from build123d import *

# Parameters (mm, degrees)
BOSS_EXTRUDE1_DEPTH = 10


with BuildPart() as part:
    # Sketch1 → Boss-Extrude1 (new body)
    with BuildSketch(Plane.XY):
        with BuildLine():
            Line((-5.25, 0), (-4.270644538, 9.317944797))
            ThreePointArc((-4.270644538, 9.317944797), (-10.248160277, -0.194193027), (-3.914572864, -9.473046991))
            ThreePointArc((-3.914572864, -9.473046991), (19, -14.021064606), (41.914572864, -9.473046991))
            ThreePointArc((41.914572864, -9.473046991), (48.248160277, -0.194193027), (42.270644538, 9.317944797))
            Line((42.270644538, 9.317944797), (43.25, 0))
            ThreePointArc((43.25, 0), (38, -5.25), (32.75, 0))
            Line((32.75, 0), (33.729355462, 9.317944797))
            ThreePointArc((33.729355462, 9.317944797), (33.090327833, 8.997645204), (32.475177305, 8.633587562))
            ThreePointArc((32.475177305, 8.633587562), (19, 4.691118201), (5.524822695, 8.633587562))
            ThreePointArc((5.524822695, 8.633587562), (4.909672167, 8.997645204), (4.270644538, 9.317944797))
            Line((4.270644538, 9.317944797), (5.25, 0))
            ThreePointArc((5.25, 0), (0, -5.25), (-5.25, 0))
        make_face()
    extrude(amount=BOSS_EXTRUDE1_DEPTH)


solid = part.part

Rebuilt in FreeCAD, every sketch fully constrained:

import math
import FreeCAD as App
import Part
import Sketcher

V = App.Vector
Q = App.Units.Quantity

doc = App.newDocument("Part")
body = doc.addObject("PartDesign::Body", "Body")

sketch1 = doc.addObject("Sketcher::SketchObject", "Sketch")
body.addObject(sketch1)
sketch1.AttachmentSupport = (doc.XY_Plane, [""])
sketch1.MapMode = "FlatFace"
sketch1.addGeometry([
    Part.LineSegment(V(-5.25, 0, 0), V(-4.270645, 9.317945, 0)),
    Part.ArcOfCircle(Part.Circle(V(0, 0, 0), V(0, 0, 1), 10.25), math.radians(114.623157), math.radians(247.547985)),
    Part.ArcOfCircle(Part.Circle(V(19, 45.978935, 0), V(0, 0, 1), 60), math.radians(-112.452015), math.radians(-67.547985)),
    Part.ArcOfCircle(Part.Circle(V(38, 0, 0), V(0, 0, 1), 10.25), math.radians(-67.547985), math.radians(65.376843)),
    Part.LineSegment(V(42.270645, 9.317945, 0), V(43.25, 0, 0)),
    Part.ArcOfCircle(Part.Circle(V(38, 0, 0), V(0, 0, 1), 5.25), math.radians(180), math.radians(360)),
    Part.LineSegment(V(32.75, 0, 0), V(33.729355, 9.317945, 0)),
    Part.ArcOfCircle(Part.Circle(V(38, 0, 0), V(0, 0, 1), 10.25), math.radians(114.623157), math.radians(122.616073)),
    Part.ArcOfCircle(Part.Circle(V(19, 29.691118, 0), V(0, 0, 1), 25), math.radians(-122.616073), math.radians(-57.383927)),
    Part.ArcOfCircle(Part.Circle(V(0, 0, 0), V(0, 0, 1), 10.25), math.radians(57.383927), math.radians(65.376843)),
    Part.LineSegment(V(4.270645, 9.317945, 0), V(5.25, 0, 0)),
    Part.ArcOfCircle(Part.Circle(V(0, 0, 0), V(0, 0, 1), 5.25), math.radians(180), math.radians(360)),
], False)
sketch1.addConstraint([
    Sketcher.Constraint("Coincident", 0, 2, 1, 1),
    Sketcher.Constraint("Tangent", 1, 2, 2, 1),
    Sketcher.Constraint("Tangent", 2, 2, 3, 1),
    Sketcher.Constraint("Coincident", 3, 2, 4, 1),
    Sketcher.Constraint("Coincident", 4, 2, 5, 2),
    Sketcher.Constraint("Coincident", 5, 1, 6, 1),
    Sketcher.Constraint("Coincident", 6, 2, 7, 1),
    Sketcher.Constraint("Tangent", 7, 2, 8, 2),
    Sketcher.Constraint("Tangent", 8, 1, 9, 1),
    Sketcher.Constraint("Coincident", 9, 2, 10, 1),
    Sketcher.Constraint("Coincident", 10, 2, 11, 2),
    Sketcher.Constraint("Coincident", 11, 1, 0, 1),
    Sketcher.Constraint("Coincident", 1, 3, -1, 1),
    Sketcher.Constraint("Coincident", 9, 3, -1, 1),
    Sketcher.Constraint("Coincident", 11, 3, -1, 1),
    Sketcher.Constraint("Coincident", 5, 3, 3, 3),
    Sketcher.Constraint("Coincident", 7, 3, 3, 3),
    Sketcher.Constraint("Equal", 1, 3),
    Sketcher.Constraint("Equal", 3, 7),
    Sketcher.Constraint("Equal", 7, 9),
    Sketcher.Constraint("Equal", 5, 11),
    Sketcher.Constraint("PointOnObject", 3, 3, -1),
    Sketcher.Constraint("PointOnObject", 4, 2, -1),
    Sketcher.Constraint("PointOnObject", 5, 1, -1),
    Sketcher.Constraint("PointOnObject", 10, 2, -1),
    Sketcher.Constraint("PointOnObject", 11, 1, -1),
    Sketcher.Constraint("Parallel", 0, 6),
    Sketcher.Constraint("Parallel", 4, 10),
    Sketcher.Constraint("Horizontal", 0, 2, 3, 2),
    Sketcher.Constraint("Radius", 2, 60.0),
    Sketcher.Constraint("Radius", 8, 25.0),
    Sketcher.Constraint("Angle", 0, Q("84 deg")),
    Sketcher.Constraint("Radius", 1, 10.25),
    Sketcher.Constraint("Radius", 5, 5.25),
    Sketcher.Constraint("DistanceX", -1, 1, 2, 3, 19.0),
])
pad1 = doc.addObject("PartDesign::Pad", "Pad")
body.addObject(pad1)
pad1.Profile = sketch1
pad1.Length = 10

doc.recompute()
